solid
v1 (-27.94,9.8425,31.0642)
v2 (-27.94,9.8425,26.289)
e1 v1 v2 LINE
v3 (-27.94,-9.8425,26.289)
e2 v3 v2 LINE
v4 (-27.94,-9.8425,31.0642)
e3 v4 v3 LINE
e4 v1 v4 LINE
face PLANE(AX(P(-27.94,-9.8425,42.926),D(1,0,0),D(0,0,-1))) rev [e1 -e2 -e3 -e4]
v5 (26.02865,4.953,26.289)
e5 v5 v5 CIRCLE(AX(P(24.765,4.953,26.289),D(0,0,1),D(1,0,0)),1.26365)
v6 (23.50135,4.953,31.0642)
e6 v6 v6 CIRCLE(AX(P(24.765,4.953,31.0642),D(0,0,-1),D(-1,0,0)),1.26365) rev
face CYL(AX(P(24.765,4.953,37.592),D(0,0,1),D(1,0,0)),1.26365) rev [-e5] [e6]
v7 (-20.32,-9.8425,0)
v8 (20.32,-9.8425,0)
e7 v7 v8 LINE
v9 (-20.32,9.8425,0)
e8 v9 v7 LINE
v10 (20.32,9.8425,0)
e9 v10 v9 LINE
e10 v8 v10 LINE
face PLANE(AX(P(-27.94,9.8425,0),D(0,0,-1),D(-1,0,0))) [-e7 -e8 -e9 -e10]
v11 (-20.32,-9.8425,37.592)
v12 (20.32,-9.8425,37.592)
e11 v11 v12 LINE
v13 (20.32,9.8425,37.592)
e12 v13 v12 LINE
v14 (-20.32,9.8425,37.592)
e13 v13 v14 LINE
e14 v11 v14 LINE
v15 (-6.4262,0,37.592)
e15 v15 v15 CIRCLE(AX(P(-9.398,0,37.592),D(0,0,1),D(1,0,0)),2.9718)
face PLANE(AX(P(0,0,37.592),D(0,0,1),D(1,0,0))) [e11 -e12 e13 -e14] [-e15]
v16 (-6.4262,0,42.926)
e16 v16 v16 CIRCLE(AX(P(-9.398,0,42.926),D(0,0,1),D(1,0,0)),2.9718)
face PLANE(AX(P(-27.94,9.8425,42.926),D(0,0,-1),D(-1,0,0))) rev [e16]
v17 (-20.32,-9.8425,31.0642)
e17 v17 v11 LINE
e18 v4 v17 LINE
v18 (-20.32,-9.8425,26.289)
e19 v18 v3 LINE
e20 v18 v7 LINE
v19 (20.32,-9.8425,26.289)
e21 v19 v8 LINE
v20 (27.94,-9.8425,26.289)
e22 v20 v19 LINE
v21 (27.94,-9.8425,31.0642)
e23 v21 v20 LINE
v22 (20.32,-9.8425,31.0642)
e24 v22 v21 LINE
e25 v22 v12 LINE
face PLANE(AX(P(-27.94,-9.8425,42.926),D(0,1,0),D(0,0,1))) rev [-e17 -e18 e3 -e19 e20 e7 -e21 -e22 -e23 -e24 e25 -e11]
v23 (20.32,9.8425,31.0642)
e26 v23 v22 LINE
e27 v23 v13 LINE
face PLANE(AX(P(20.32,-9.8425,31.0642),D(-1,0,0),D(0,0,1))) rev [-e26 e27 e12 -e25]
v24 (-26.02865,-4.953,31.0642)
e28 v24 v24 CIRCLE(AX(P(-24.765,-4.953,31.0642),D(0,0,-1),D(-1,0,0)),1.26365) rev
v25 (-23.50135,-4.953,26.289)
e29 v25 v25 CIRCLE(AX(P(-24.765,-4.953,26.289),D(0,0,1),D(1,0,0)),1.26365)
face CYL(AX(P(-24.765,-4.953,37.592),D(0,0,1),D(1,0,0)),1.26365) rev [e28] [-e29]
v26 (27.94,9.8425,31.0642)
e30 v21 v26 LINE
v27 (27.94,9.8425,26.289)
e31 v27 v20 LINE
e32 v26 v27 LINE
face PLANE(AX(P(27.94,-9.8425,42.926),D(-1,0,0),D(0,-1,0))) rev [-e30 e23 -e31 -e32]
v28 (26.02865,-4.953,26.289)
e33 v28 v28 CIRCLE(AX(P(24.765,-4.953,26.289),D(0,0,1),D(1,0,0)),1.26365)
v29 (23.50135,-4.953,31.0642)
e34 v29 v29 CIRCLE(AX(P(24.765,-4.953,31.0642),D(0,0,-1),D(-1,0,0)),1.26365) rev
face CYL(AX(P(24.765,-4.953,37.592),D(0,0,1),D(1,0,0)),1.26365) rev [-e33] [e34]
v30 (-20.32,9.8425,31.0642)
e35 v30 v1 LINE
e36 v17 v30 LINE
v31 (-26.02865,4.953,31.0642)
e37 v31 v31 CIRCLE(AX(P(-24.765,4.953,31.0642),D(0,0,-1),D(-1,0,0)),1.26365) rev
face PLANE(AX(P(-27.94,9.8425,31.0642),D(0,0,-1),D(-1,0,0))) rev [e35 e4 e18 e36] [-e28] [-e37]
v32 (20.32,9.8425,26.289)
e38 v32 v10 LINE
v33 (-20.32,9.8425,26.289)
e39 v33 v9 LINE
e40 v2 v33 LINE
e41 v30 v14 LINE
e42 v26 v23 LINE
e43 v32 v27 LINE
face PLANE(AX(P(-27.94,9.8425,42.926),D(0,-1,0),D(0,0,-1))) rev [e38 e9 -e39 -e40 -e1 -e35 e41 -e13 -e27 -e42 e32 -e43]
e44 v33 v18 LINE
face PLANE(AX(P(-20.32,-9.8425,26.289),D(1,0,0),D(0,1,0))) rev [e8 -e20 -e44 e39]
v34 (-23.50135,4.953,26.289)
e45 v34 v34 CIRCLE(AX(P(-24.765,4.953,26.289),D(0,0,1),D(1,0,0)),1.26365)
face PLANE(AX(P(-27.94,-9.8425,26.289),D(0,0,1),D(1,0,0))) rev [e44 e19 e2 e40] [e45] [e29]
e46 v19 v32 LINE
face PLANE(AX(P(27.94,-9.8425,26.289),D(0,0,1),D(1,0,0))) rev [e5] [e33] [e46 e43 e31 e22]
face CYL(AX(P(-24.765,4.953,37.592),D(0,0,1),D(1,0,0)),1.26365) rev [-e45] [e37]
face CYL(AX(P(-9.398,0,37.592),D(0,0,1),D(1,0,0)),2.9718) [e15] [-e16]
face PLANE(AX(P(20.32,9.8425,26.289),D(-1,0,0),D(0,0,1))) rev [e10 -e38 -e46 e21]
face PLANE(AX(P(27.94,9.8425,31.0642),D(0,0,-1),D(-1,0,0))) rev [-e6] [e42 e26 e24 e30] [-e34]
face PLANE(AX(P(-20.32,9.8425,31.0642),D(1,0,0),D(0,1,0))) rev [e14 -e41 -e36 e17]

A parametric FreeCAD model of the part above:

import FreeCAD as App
import Part
import Sketcher
from FreeCAD import Vector
Q = App.Units.Quantity


def add_polygon(sketch, points):
    """Adds a closed chain of lines whose ends are joined by coincident constraints."""
    first, n = sketch.GeometryCount, len(points)
    for a, b in zip(points, points[1:] + points[:1]):
        sketch.addGeometry(Part.LineSegment(App.Vector(*a, 0), App.Vector(*b, 0)), False)
    for i in range(n):
        sketch.addConstraint(Sketcher.Constraint("Coincident", first + i, 2, first + (i + 1) % n, 1))

doc = App.newDocument("Part")
body = doc.addObject("PartDesign::Body", "Body")

# Sketch on XY plane
sketch1 = doc.addObject("Sketcher::SketchObject", "Sketch")
body.addObject(sketch1)
sketch1.AttachmentSupport = (doc.XY_Plane, [""])
sketch1.MapMode = "FlatFace"
add_polygon(sketch1, [(-27.94, 9.8425), (-27.94, -9.8425), (27.94, -9.8425), (27.94, 9.8425)])  # lines 0-3
sketch1.addConstraint(Sketcher.Constraint("Vertical", 0))
sketch1.addConstraint(Sketcher.Constraint("Horizontal", 1))
sketch1.addConstraint(Sketcher.Constraint("Vertical", 2))
sketch1.addConstraint(Sketcher.Constraint("Horizontal", 3))
sketch1.addConstraint(Sketcher.Constraint("Symmetric", 0, 2, 2, 2, -1, 1))
sketch1.addConstraint(Sketcher.Constraint("DistanceX", 1, 1, 1, 2, Q("2.2 in")))
sketch1.addConstraint(Sketcher.Constraint("DistanceY", 0, 2, 0, 1, Q("0.775 in")))
pad1 = doc.addObject("PartDesign::Pad", "Pad")
body.addObject(pad1)
pad1.Profile = sketch1
pad1.Length = Q("1.69 in")

# Sketch on XY plane
sketch2 = doc.addObject("Sketcher::SketchObject", "Sketch001")
body.addObject(sketch2)
sketch2.AttachmentSupport = (doc.XY_Plane, [""])
sketch2.MapMode = "FlatFace"
sketch2.AttachmentOffset = App.Placement(Vector(0, 0, 1.69 * 25.4), App.Rotation())
add_polygon(sketch2, [(-36.256, 18.159), (-36.256, -18.159), (36.256, -18.159), (36.256, 18.159)])  # lines 0-3
sketch2.addGeometry(Part.Circle(Vector(-9.398, 0, 0), Vector(0, 0, 1), 2.9718), False)  # 4
sketch2.addConstraint(Sketcher.Constraint("Vertical", 0))
sketch2.addConstraint(Sketcher.Constraint("Horizontal", 1))
sketch2.addConstraint(Sketcher.Constraint("Vertical", 2))
sketch2.addConstraint(Sketcher.Constraint("Horizontal", 3))
sketch2.addConstraint(Sketcher.Constraint("Symmetric", 0, 2, 2, 2, -1, 1))
sketch2.addConstraint(Sketcher.Constraint("PointOnObject", 4, 3, -1))
sketch2.addConstraint(Sketcher.Constraint("Diameter", 4, Q("0.234 in")))
sketch2.addConstraint(Sketcher.Constraint("DistanceX", 4, 3, -1, 1, Q("0.37 in")))
sketch2.addConstraint(Sketcher.Constraint("DistanceX", 1, 1, 1, 2, 72.512))
sketch2.addConstraint(Sketcher.Constraint("DistanceY", 0, 2, 0, 1, 36.318))
pocket1 = doc.addObject("PartDesign::Pocket", "Pocket")
body.addObject(pocket1)
pocket1.Profile = sketch2
pocket1.Length = Q("0.21 in")

# Sketch on XY plane
sketch3 = doc.addObject("Sketcher::SketchObject", "Sketch002")
body.addObject(sketch3)
sketch3.AttachmentSupport = (doc.XY_Plane, [""])
sketch3.MapMode = "FlatFace"
add_polygon(sketch3, [(27.94, 9.8425), (27.94, -9.8425), (20.32, -9.8425), (20.32, 9.8425)])  # lines 0-3
add_polygon(sketch3, [(-20.32, 9.8425), (-20.32, -9.8425), (-27.94, -9.8425), (-27.94, 9.8425)])  # lines 4-7
sketch3.addConstraint(Sketcher.Constraint("Vertical", 0))
sketch3.addConstraint(Sketcher.Constraint("Horizontal", 1))
sketch3.addConstraint(Sketcher.Constraint("Vertical", 2))
sketch3.addConstraint(Sketcher.Constraint("Horizontal", 3))
sketch3.addConstraint(Sketcher.Constraint("Vertical", 4))
sketch3.addConstraint(Sketcher.Constraint("Horizontal", 5))
sketch3.addConstraint(Sketcher.Constraint("Vertical", 6))
sketch3.addConstraint(Sketcher.Constraint("Horizontal", 7))
sketch3.addConstraint(Sketcher.Constraint("Symmetric", 2, 2, 4, 2, -1, 1))
sketch3.addConstraint(Sketcher.Constraint("Symmetric", 0, 2, 6, 2, -1, 1))
sketch3.addConstraint(Sketcher.Constraint("Horizontal", 1, 2, 4, 2))
sketch3.addConstraint(Sketcher.Constraint("DistanceX", 1, 2, 1, 1, Q("0.3 in")))
sketch3.addConstraint(Sketcher.Constraint("DistanceX", -1, 1, 0, 2, Q("1.1 in")))
sketch3.addConstraint(Sketcher.Constraint("DistanceY", 0, 2, 0, 1, Q("0.775 in")))
pocket2 = doc.addObject("PartDesign::Pocket", "Pocket001")
body.addObject(pocket2)
pocket2.Profile = sketch3
pocket2.Length = Q("1.035 in")
pocket2.Reversed = True

# Sketch on XY plane
sketch4 = doc.addObject("Sketcher::SketchObject", "Sketch003")
body.addObject(sketch4)
sketch4.AttachmentSupport = (doc.XY_Plane, [""])
sketch4.MapMode = "FlatFace"
sketch4.AttachmentOffset = App.Placement(Vector(0, 0, 1.48 * 25.4), App.Rotation())
sketch4.addGeometry(Part.Circle(Vector(-24.765, 4.953, 0), Vector(0, 0, 1), 1.26365), False)
sketch4.addGeometry(Part.Circle(Vector(-24.765, -4.953, 0), Vector(0, 0, 1), 1.26365), False)
sketch4.addGeometry(Part.Circle(Vector(24.765, 4.953, 0), Vector(0, 0, 1), 1.26365), False)
sketch4.addGeometry(Part.Circle(Vector(24.765, -4.953, 0), Vector(0, 0, 1), 1.26365), False)
sketch4.addConstraint(Sketcher.Constraint("Equal", 0, 1))
sketch4.addConstraint(Sketcher.Constraint("Equal", 1, 2))
sketch4.addConstraint(Sketcher.Constraint("Equal", 2, 3))
sketch4.addConstraint(Sketcher.Constraint("Symmetric", 1, 3, 2, 3, -1, 1))
sketch4.addConstraint(Sketcher.Constraint("Symmetric", 0, 3, 3, 3, -1, 1))
sketch4.addConstraint(Sketcher.Constraint("Symmetric", 0, 3, 2, 3, -2))
sketch4.addConstraint(Sketcher.Constraint("Diameter", 0, Q("0.0995 in")))
sketch4.addConstraint(Sketcher.Constraint("DistanceY", 1, 3, 0, 3, Q("0.39 in")))
sketch4.addConstraint(Sketcher.Constraint("DistanceX", 0, 3, 2, 3, Q("1.95 in")))
doc.recompute()
hole = doc.addObject("PartDesign::Hole", "Hole")
body.addObject(hole)
hole.Profile = sketch4
hole.ThreadType = "None"
hole.Diameter = Q("0.0995 in")
hole.DepthType = "Dimension"
hole.Depth = Q("0.5 in")
hole.DrillPoint = "Angled"
hole.DrillPointAngle = 118

# Sketch on XY plane
sketch5 = doc.addObject("Sketcher::SketchObject", "Sketch004")
body.addObject(sketch5)
sketch5.AttachmentSupport = (doc.XY_Plane, [""])
sketch5.MapMode = "FlatFace"
sketch5.AttachmentOffset = App.Placement(Vector(0, 0, 1.48 * 25.4), App.Rotation())
add_polygon(sketch5, [(-27.94, 9.8425), (-27.94, -9.8425), (-20.32, -9.8425), (-20.32, 9.8425)])  # lines 0-3
add_polygon(sketch5, [(20.32, 9.8425), (20.32, -9.8425), (27.94, -9.8425), (27.94, 9.8425)])  # lines 4-7
sketch5.addConstraint(Sketcher.Constraint("Vertical", 0))
sketch5.addConstraint(Sketcher.Constraint("Horizontal", 1))
sketch5.addConstraint(Sketcher.Constraint("Vertical", 2))
sketch5.addConstraint(Sketcher.Constraint("Horizontal", 3))
sketch5.addConstraint(Sketcher.Constraint("Vertical", 4))
sketch5.addConstraint(Sketcher.Constraint("Horizontal", 5))
sketch5.addConstraint(Sketcher.Constraint("Vertical", 6))
sketch5.addConstraint(Sketcher.Constraint("Horizontal", 7))
sketch5.addConstraint(Sketcher.Constraint("Symmetric", 2, 2, 4, 2, -1, 1))
sketch5.addConstraint(Sketcher.Constraint("Symmetric", 0, 2, 6, 2, -1, 1))
sketch5.addConstraint(Sketcher.Constraint("Horizontal", 1, 2, 4, 2))
sketch5.addConstraint(Sketcher.Constraint("DistanceX", 1, 1, 1, 2, Q("0.3 in")))
sketch5.addConstraint(Sketcher.Constraint("DistanceX", 0, 2, -1, 1, Q("1.1 in")))
sketch5.addConstraint(Sketcher.Constraint("DistanceY", 0, 2, 0, 1, Q("0.775 in")))
pocket3 = doc.addObject("PartDesign::Pocket", "Pocket002")
body.addObject(pocket3)
pocket3.Profile = sketch5
pocket3.Length = Q("0.257 in")

doc.recompute()
